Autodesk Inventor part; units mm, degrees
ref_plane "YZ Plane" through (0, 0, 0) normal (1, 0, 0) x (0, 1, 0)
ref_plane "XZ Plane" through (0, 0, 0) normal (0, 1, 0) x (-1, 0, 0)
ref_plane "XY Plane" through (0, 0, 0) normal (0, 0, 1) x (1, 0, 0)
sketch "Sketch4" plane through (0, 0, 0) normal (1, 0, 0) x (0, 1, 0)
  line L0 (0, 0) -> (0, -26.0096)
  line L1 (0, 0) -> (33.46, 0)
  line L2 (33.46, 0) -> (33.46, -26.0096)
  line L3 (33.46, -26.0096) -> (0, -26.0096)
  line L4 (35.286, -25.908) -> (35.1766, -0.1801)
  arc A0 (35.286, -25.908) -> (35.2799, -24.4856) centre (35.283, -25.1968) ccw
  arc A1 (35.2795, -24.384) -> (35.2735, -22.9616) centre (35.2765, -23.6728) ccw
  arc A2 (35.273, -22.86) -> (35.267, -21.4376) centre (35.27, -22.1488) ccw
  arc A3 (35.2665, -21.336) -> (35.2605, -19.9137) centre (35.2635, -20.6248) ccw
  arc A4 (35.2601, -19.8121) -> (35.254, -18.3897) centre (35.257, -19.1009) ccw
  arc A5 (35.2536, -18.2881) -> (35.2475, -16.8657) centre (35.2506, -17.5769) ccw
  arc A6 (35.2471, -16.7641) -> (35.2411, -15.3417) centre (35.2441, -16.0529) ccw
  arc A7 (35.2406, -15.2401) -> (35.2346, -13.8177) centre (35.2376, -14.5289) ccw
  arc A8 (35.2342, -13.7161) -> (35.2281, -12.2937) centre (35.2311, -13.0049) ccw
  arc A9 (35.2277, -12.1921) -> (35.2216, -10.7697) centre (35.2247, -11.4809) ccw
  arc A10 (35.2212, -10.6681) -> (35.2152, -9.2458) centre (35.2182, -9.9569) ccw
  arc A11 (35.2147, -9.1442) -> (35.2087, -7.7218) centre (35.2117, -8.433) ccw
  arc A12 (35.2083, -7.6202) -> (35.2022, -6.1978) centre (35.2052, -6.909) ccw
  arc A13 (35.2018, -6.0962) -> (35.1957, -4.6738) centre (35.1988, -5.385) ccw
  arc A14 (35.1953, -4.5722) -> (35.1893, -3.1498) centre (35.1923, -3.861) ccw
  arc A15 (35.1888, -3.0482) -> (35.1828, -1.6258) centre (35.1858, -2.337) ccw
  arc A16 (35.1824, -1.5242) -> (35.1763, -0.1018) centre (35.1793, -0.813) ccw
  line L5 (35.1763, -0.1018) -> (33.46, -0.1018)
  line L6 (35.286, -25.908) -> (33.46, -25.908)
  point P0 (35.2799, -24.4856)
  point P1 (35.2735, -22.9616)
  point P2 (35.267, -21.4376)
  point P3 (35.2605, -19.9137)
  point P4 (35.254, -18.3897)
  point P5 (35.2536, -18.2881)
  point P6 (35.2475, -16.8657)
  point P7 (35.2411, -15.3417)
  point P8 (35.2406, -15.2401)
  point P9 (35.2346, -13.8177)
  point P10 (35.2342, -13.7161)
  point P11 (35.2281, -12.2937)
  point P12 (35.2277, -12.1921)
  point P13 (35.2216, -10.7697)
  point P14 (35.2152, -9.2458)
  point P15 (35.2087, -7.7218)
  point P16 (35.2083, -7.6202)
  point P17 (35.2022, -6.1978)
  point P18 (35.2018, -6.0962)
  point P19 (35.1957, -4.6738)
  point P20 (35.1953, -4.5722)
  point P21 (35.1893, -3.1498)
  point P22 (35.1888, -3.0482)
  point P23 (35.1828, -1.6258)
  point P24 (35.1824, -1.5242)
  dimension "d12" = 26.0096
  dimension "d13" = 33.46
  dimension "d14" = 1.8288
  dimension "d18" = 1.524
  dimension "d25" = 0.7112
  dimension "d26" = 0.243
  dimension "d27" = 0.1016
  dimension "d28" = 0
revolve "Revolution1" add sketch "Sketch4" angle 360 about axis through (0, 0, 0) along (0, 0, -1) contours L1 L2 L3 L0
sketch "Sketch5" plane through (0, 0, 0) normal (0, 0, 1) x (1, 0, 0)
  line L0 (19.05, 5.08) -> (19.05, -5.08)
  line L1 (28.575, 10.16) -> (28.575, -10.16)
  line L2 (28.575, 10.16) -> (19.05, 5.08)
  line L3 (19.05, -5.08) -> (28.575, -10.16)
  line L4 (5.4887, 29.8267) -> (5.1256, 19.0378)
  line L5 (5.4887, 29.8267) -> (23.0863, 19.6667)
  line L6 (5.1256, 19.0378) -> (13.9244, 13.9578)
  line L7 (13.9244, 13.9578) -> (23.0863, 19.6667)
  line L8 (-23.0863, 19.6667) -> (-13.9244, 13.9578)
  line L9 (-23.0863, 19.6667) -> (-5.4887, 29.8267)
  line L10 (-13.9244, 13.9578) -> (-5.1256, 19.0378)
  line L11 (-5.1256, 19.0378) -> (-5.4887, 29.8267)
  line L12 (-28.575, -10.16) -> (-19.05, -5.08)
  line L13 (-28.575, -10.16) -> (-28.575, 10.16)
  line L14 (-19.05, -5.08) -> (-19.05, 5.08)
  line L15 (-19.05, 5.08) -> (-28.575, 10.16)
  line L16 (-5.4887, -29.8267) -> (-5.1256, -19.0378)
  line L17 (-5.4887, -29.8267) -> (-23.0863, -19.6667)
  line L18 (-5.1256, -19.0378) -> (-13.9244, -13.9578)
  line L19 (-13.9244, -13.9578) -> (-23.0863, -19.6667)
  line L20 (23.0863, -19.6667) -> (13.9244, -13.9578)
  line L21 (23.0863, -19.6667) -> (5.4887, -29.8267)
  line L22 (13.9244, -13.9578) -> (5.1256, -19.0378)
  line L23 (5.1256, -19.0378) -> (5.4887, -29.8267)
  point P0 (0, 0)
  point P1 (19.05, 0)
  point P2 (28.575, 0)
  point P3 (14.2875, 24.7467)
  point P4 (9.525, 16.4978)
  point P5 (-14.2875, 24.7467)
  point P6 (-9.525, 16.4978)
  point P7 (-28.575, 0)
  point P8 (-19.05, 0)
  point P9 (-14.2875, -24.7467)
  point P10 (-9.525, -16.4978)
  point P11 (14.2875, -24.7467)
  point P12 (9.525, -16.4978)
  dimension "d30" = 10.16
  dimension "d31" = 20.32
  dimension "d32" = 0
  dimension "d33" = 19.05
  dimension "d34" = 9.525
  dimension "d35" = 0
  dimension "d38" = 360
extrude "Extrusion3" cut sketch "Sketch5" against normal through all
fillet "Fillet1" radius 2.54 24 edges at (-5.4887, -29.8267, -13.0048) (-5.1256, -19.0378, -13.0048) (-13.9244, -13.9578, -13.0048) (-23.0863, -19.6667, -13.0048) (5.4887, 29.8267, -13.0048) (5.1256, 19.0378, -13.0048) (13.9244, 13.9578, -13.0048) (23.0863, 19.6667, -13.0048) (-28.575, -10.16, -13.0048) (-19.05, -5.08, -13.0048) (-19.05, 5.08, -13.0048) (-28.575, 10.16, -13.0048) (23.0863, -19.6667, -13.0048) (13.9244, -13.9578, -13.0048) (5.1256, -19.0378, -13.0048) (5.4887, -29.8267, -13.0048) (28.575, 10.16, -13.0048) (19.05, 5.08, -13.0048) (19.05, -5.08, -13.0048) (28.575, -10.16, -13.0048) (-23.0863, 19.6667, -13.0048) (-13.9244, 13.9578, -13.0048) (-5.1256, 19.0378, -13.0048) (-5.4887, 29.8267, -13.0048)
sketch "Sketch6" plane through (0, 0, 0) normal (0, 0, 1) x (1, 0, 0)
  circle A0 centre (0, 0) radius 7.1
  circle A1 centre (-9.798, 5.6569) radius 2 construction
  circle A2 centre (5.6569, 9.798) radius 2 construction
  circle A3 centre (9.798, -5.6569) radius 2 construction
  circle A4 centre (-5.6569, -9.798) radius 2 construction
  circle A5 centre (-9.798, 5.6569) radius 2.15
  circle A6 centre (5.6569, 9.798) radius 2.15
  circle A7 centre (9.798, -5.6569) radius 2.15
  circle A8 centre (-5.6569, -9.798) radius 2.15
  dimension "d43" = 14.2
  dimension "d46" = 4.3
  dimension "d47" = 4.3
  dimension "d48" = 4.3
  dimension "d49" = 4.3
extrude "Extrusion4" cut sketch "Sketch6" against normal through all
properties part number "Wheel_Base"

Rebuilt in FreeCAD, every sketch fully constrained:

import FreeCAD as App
import Part
import Sketcher
from FreeCAD import Vector
Q = App.Units.Quantity


def edges_at(feature, points):
    """Names of the edges that pass closest to the given points."""
    edges = feature.Shape.Edges
    near = lambda p: min(range(len(edges)), key=lambda i: edges[i].distToShape(Part.Vertex(*p))[0])
    return sorted({f"Edge{near(p) + 1}" for p in points})


def add_polygon(sketch, points):
    """Adds a closed chain of lines whose ends are joined by coincident constraints."""
    first, n = sketch.GeometryCount, len(points)
    for a, b in zip(points, points[1:] + points[:1]):
        sketch.addGeometry(Part.LineSegment(App.Vector(*a, 0), App.Vector(*b, 0)), False)
    for i in range(n):
        sketch.addConstraint(Sketcher.Constraint("Coincident", first + i, 2, first + (i + 1) % n, 1))

doc = App.newDocument("Part")
body = doc.addObject("PartDesign::Body", "Body")

sketch1 = body.newObject("Sketcher::SketchObject", "Sketch")
sketch1.AttachmentSupport = (doc.getObject("YZ_Plane"), [""])
sketch1.MapMode = "FlatFace"
add_polygon(sketch1, [(33, 0), (0, 0), (0, -26), (33, -26)])
sketch1.addConstraint(Sketcher.Constraint("Horizontal", 0))
sketch1.addConstraint(Sketcher.Constraint("Vertical", 1))
sketch1.addConstraint(Sketcher.Constraint("Horizontal", 2))
sketch1.addConstraint(Sketcher.Constraint("Vertical", 3))
sketch1.addConstraint(Sketcher.Constraint("Coincident", 0, 2, -1, 1))
sketch1.addConstraint(Sketcher.Constraint("DistanceY", 1, 2, 1, 1, Q("1.024 in")))
sketch1.addConstraint(Sketcher.Constraint("DistanceX", 0, 2, 0, 1, 33.46))
revolution = body.newObject("PartDesign::Revolution", "Revolution")
revolution.Profile = sketch1
revolution.ReferenceAxis = (sketch1, ["V_Axis"])
revolution.Angle = 360

sketch2 = body.newObject("Sketcher::SketchObject", "Sketch001")
sketch2.AttachmentSupport = (doc.getObject("XY_Plane"), [""])
sketch2.MapMode = "FlatFace"
add_polygon(sketch2, [(29, 10), (19, 5), (19, -5), (29, -10)])
add_polygon(sketch2, [(23, 20), (5, 30), (5, 19), (14, 14)])
add_polygon(sketch2, [(-5, 30), (-23, 20), (-14, 14), (-5, 19)])
add_polygon(sketch2, [(-29, 10), (-29, -10), (-19, -5), (-19, 5)])
add_polygon(sketch2, [(-23, -20), (-5, -30), (-5, -19), (-14, -14)])
add_polygon(sketch2, [(5, -30), (23, -20), (14, -14), (5, -19)])
sketch2.addConstraint(Sketcher.Constraint("Vertical", 1))
sketch2.addConstraint(Sketcher.Constraint("Vertical", 3))
sketch2.addConstraint(Sketcher.Constraint("Vertical", 12))
sketch2.addConstraint(Sketcher.Constraint("Vertical", 14))
sketch2.addConstraint(Sketcher.Constraint("Symmetric", 3, 2, 12, 2, -1, 1))
sketch2.addConstraint(Sketcher.Constraint("Symmetric", 0, 2, 13, 2, -1, 1))
sketch2.addConstraint(Sketcher.Constraint("Symmetric", 4, 2, 16, 2, -1, 1))
sketch2.addConstraint(Sketcher.Constraint("Symmetric", 5, 2, 17, 2, -1, 1))
sketch2.addConstraint(Sketcher.Constraint("Symmetric", 6, 2, 18, 2, -1, 1))
sketch2.addConstraint(Sketcher.Constraint("Symmetric", 7, 2, 19, 2, -1, 1))
sketch2.addConstraint(Sketcher.Constraint("Symmetric", 8, 2, 20, 2, -1, 1))
sketch2.addConstraint(Sketcher.Constraint("Symmetric", 9, 2, 21, 2, -1, 1))
sketch2.addConstraint(Sketcher.Constraint("Symmetric", 10, 2, 22, 2, -1, 1))
sketch2.addConstraint(Sketcher.Constraint("Symmetric", 11, 2, 23, 2, -1, 1))
sketch2.addConstraint(Sketcher.Constraint("Symmetric", 7, 2, 8, 2, -2))
sketch2.addConstraint(Sketcher.Constraint("Symmetric", 6, 2, 9, 2, -2))
sketch2.addConstraint(Sketcher.Constraint("Symmetric", 5, 2, 10, 2, -2))
sketch2.addConstraint(Sketcher.Constraint("Symmetric", 4, 2, 11, 2, -2))
sketch2.addConstraint(Sketcher.Constraint("Parallel", 4, 6))
sketch2.addConstraint(Sketcher.Constraint("Parallel", 2, 15))
sketch2.addConstraint(Sketcher.Constraint("Horizontal", 2, 2, 12, 2))
sketch2.addConstraint(Sketcher.Constraint("Horizontal", 1, 2, 13, 2))
sketch2.addConstraint(Sketcher.Constraint("Horizontal", 0, 2, 14, 2))
sketch2.addConstraint(Sketcher.Constraint("Equal", 2, 5))
sketch2.addConstraint(Sketcher.Constraint("Equal", 5, 7))
sketch2.addConstraint(Sketcher.Constraint("DistanceY", 1, 2, 1, 1, Q("0.4 in")))
sketch2.addConstraint(Sketcher.Constraint("DistanceY", 3, 1, 3, 2, Q("0.8 in")))
sketch2.addConstraint(Sketcher.Constraint("Distance", 4, Q("0.8 in")))
sketch2.addConstraint(Sketcher.Constraint("Distance", 6, Q("0.4 in")))
sketch2.addConstraint(Sketcher.Constraint("DistanceY", 7, 2, 4, 2, Q("0.4 in")))
sketch2.addConstraint(Sketcher.Constraint("DistanceX", -1, 1, 0, 2, Q("0.75 in")))
sketch2.addConstraint(Sketcher.Constraint("DistanceX", 9, 2, 5, 2, Q("0.75 in")))
sketch2.addConstraint(Sketcher.Constraint("DistanceX", 1, 2, 2, 2, Q("0.375 in")))
sketch2.addConstraint(Sketcher.Constraint("DistanceY", -1, 1, 4, 2, 29.8267))
pocket1 = body.newObject("PartDesign::Pocket", "Pocket")
pocket1.Profile = sketch2
pocket1.Type = "ThroughAll"
doc.recompute()

fillet = body.newObject("PartDesign::Fillet", "Fillet")
fillet.Base = (pocket1, edges_at(pocket1, [
    (-5.489, -29.827, -13.005),
    (-5.126, -19.038, -13.005),
    (-13.924, -13.958, -13.005),
    (-23.086, -19.667, -13.005),
    (5.489, 29.827, -13.005),
    (5.126, 19.038, -13.005),
    (13.924, 13.958, -13.005),
    (23.086, 19.667, -13.005),
    (-28.575, -10.16, -13.005),
    (-19.05, -5.08, -13.005),
    (-19.05, 5.08, -13.005),
    (-28.575, 10.16, -13.005),
    (23.086, -19.667, -13.005),
    (13.924, -13.958, -13.005),
    (5.126, -19.038, -13.005),
    (5.489, -29.827, -13.005),
    (28.575, 10.16, -13.005),
    (19.05, 5.08, -13.005),
    (19.05, -5.08, -13.005),
    (28.575, -10.16, -13.005),
    (-23.086, 19.667, -13.005),
    (-13.924, 13.958, -13.005),
    (-5.126, 19.038, -13.005),
    (-5.489, 29.827, -13.005),
]))
fillet.Radius = Q("0.1 in")

sketch3 = body.newObject("Sketcher::SketchObject", "Sketch002")
sketch3.AttachmentSupport = (doc.getObject("XY_Plane"), [""])
sketch3.MapMode = "FlatFace"
sketch3.addGeometry(Part.Circle(Vector(0, 0, 0), Vector(0, 0, 1), 7.1), False)
sketch3.addGeometry(Part.Circle(Vector(-9.8, 5.7, 0), Vector(0, 0, 1), 2.1), False)
sketch3.addGeometry(Part.Circle(Vector(5.7, 9.8, 0), Vector(0, 0, 1), 2.1), False)
sketch3.addGeometry(Part.Circle(Vector(9.8, -5.7, 0), Vector(0, 0, 1), 2.1), False)
sketch3.addGeometry(Part.Circle(Vector(-5.7, -9.8, 0), Vector(0, 0, 1), 2.1), False)
sketch3.addConstraint(Sketcher.Constraint("Coincident", 0, 3, -1, 1))
sketch3.addConstraint(Sketcher.Constraint("Equal", 1, 2))
sketch3.addConstraint(Sketcher.Constraint("Equal", 2, 3))
sketch3.addConstraint(Sketcher.Constraint("Equal", 3, 4))
sketch3.addConstraint(Sketcher.Constraint("Symmetric", 1, 3, 3, 3, -1, 1))
sketch3.addConstraint(Sketcher.Constraint("Symmetric", 2, 3, 4, 3, -1, 1))
sketch3.addConstraint(Sketcher.Constraint("Diameter", 1, Q("0.1693 in")))
sketch3.addConstraint(Sketcher.Constraint("Diameter", 0, 14.2))
sketch3.addConstraint(Sketcher.Constraint("DistanceX", 1, 3, 3, 3, Q("0.7715 in")))
sketch3.addConstraint(Sketcher.Constraint("DistanceY", 4, 3, 2, 3, Q("0.7715 in")))
sketch3.addConstraint(Sketcher.Constraint("DistanceY", -1, 1, 1, 3, 5.657))
sketch3.addConstraint(Sketcher.Constraint("DistanceX", -1, 1, 2, 3, 5.657))
pocket2 = body.newObject("PartDesign::Pocket", "Pocket001")
pocket2.Profile = sketch3
pocket2.Type = "ThroughAll"

doc.recompute()
